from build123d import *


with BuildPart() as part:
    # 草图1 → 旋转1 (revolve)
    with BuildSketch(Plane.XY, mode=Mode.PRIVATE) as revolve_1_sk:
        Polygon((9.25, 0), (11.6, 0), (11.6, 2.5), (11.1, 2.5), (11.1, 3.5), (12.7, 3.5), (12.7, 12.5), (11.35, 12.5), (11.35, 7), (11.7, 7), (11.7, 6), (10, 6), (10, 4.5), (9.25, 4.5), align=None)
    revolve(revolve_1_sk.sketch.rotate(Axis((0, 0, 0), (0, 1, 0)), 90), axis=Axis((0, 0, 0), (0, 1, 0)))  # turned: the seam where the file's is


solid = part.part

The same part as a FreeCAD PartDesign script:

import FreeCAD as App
import Part
import Sketcher

V = App.Vector
Q = App.Units.Quantity


def add_polygon(sketch, points):
    """Adds a closed chain of lines whose ends are joined by coincident constraints."""
    first, n = sketch.GeometryCount, len(points)
    for a, b in zip(points, points[1:] + points[:1]):
        sketch.addGeometry(Part.LineSegment(App.Vector(*a, 0), App.Vector(*b, 0)), False)
    for i in range(n):
        sketch.addConstraint(Sketcher.Constraint("Coincident", first + i, 2, first + (i + 1) % n, 1))

doc = App.newDocument("Part")
params = doc.addObject("Spreadsheet::Sheet", "Params")
for row, (alias, value) in enumerate([
    ("sketch1_height", "1 mm"),
    ("sketch1_height2", "9 mm"),
    ("sketch1_width", "0.5 mm"),
    ("sketch1_width2", "1.6 mm"),
    ("sketch1_width3", "1.7 mm"),
    ("revolution_angle", "360 deg"),
], start=1):
    params.set(f"A{row}", alias)
    params.set(f"B{row}", "=" + value)
    params.setAlias(f"B{row}", alias)

body = doc.addObject("PartDesign::Body", "Body")

sketch1 = body.newObject("Sketcher::SketchObject", "Sketch")
sketch1.AttachmentSupport = (doc.getObject("XY_Plane"), [""])
sketch1.MapMode = "FlatFace"
add_polygon(sketch1, [(9.25, 0), (11.6, 0), (11.6, 2.5), (11.1, 2.5), (11.1, 3.5), (12.7, 3.5), (12.7, 12.5), (11.35, 12.5), (11.35, 7), (11.7, 7), (11.7, 6), (10, 6), (10, 4.5), (9.25, 4.5)])
sketch1.addConstraint([
    Sketcher.Constraint("Horizontal", 0),
    Sketcher.Constraint("Vertical", 1),
    Sketcher.Constraint("Horizontal", 2),
    Sketcher.Constraint("Vertical", 3),
    Sketcher.Constraint("Horizontal", 4),
    Sketcher.Constraint("Vertical", 5),
    Sketcher.Constraint("Horizontal", 6),
    Sketcher.Constraint("Vertical", 7),
    Sketcher.Constraint("Horizontal", 8),
    Sketcher.Constraint("Vertical", 9),
    Sketcher.Constraint("Horizontal", 10),
    Sketcher.Constraint("Vertical", 11),
    Sketcher.Constraint("Horizontal", 12),
    Sketcher.Constraint("Vertical", 13),
    Sketcher.Constraint("PointOnObject", 0, 2, -1),
    Sketcher.Constraint("Equal", 3, 9),
    Sketcher.Constraint("DistanceY", 3, 1, 3, 2, Q("1 mm")),
    Sketcher.Constraint("DistanceY", 5, 1, 5, 2, Q("9 mm")),
    Sketcher.Constraint("DistanceX", 2, 2, 2, 1, Q("0.5 mm")),
    Sketcher.Constraint("DistanceX", 4, 1, 4, 2, Q("1.6 mm")),
    Sketcher.Constraint("DistanceX", 10, 2, 10, 1, Q("1.7 mm")),
    Sketcher.Constraint("DistanceY", 1, 1, 1, 2, Q("2.5 mm")),
    Sketcher.Constraint("DistanceY", 7, 2, 7, 1, Q("5.5 mm")),
    Sketcher.Constraint("DistanceY", 11, 2, 11, 1, Q("1.5 mm")),
    Sketcher.Constraint("DistanceX", -1, 1, 10, 2, Q("10 mm")),
    Sketcher.Constraint("DistanceX", 8, 2, 4, 2, Q("1 mm")),
    Sketcher.Constraint("DistanceX", 0, 1, 0, 2, Q("2.35 mm")),
    Sketcher.Constraint("DistanceX", 6, 2, 6, 1, Q("1.35 mm")),
])
sketch1.setExpression("Constraints[30]", "Params.sketch1_height")
sketch1.setExpression("Constraints[31]", "Params.sketch1_height2")
sketch1.setExpression("Constraints[32]", "Params.sketch1_width")
sketch1.setExpression("Constraints[33]", "Params.sketch1_width2")
sketch1.setExpression("Constraints[34]", "Params.sketch1_width3")
revolution = body.newObject("PartDesign::Revolution", "Revolution")
revolution.Profile = sketch1
revolution.ReferenceAxis = (sketch1, ["V_Axis"])
revolution.setExpression("Angle", "Params.revolution_angle")

doc.recompute()
